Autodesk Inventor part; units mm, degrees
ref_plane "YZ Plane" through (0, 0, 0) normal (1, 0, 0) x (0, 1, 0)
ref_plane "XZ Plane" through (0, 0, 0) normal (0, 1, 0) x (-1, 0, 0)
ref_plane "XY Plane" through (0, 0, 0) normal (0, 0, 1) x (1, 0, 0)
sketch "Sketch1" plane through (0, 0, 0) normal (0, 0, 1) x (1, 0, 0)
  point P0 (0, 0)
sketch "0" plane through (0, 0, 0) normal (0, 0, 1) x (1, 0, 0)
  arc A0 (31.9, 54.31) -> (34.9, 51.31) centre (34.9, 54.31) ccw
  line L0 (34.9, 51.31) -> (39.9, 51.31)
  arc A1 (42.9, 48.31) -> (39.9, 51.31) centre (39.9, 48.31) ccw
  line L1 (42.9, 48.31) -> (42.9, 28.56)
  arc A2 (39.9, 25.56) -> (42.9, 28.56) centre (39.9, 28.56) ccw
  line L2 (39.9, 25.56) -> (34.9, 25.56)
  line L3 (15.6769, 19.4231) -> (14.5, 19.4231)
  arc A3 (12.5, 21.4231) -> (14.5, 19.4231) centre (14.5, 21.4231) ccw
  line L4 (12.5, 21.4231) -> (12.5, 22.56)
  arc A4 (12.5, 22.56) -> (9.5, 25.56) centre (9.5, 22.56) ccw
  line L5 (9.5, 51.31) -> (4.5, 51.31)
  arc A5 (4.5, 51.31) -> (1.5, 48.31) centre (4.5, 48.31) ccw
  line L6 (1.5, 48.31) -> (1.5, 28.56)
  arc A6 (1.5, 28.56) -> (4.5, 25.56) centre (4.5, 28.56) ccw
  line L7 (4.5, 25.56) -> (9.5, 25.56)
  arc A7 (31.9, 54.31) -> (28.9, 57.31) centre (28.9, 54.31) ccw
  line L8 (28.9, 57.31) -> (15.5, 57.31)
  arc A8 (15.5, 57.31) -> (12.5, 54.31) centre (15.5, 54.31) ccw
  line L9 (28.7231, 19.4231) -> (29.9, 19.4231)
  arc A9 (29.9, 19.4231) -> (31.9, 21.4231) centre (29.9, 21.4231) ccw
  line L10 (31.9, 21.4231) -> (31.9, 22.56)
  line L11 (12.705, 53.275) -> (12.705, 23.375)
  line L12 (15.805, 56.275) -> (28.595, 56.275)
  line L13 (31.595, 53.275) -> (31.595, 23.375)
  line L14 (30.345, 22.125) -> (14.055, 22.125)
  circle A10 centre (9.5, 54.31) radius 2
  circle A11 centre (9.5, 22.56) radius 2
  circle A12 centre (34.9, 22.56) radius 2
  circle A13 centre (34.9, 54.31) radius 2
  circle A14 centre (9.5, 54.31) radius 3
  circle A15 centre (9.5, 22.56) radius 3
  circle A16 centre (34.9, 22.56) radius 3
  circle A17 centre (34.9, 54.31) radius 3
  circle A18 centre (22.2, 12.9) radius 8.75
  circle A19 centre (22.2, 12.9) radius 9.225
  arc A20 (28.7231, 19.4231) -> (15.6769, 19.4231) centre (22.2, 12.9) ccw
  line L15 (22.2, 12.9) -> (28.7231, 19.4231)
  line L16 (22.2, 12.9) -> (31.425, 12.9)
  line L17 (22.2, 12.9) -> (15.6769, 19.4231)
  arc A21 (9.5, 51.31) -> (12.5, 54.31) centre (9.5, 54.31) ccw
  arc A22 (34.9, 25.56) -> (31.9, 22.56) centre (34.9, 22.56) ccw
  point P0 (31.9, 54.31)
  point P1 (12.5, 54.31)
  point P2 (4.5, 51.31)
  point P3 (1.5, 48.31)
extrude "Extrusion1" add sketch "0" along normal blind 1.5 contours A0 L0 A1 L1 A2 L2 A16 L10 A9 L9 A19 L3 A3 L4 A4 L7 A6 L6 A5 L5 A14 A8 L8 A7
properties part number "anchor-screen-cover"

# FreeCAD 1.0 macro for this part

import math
import FreeCAD as App
import Part
import Sketcher
Q = App.Units.Quantity

doc = App.newDocument("Part")
body = doc.addObject("PartDesign::Body", "Body")

# Sketch on XY plane
sketch1 = body.newObject("Sketcher::SketchObject", "Sketch")
sketch1.AttachmentSupport = (doc.getObject("XY_Plane"), [""])
sketch1.MapMode = "FlatFace"
sketch1.addGeometry([
    Part.ArcOfCircle(Part.Circle(App.Vector(34.9, 54.31, 0), App.Vector(0, 0, 1), 3), math.radians(180), math.radians(270)),  # 0
    Part.ArcOfCircle(Part.Circle(App.Vector(28.9, 54.31, 0), App.Vector(0, 0, 1), 3), math.radians(0), math.radians(90)),  # 1
    Part.LineSegment(App.Vector(28.9, 57.31, 0), App.Vector(15.5, 57.31, 0)),  # 2
    Part.ArcOfCircle(Part.Circle(App.Vector(15.5, 54.31, 0), App.Vector(0, 0, 1), 3), math.radians(90), math.radians(180)),  # 3
    Part.ArcOfCircle(Part.Circle(App.Vector(9.5, 54.31, 0), App.Vector(0, 0, 1), 3), math.radians(-90), math.radians(0)),  # 4
    Part.LineSegment(App.Vector(9.5, 51.31, 0), App.Vector(4.5, 51.31, 0)),  # 5
    Part.ArcOfCircle(Part.Circle(App.Vector(4.5, 48.31, 0), App.Vector(0, 0, 1), 3), math.radians(90), math.radians(180)),  # 6
    Part.LineSegment(App.Vector(1.5, 48.31, 0), App.Vector(1.5, 28.56, 0)),  # 7
    Part.ArcOfCircle(Part.Circle(App.Vector(4.5, 28.56, 0), App.Vector(0, 0, 1), 3), math.radians(180), math.radians(270)),  # 8
    Part.LineSegment(App.Vector(4.5, 25.56, 0), App.Vector(9.5, 25.56, 0)),  # 9
    Part.ArcOfCircle(Part.Circle(App.Vector(9.5, 22.56, 0), App.Vector(0, 0, 1), 3), math.radians(0), math.radians(90)),  # 10
    Part.LineSegment(App.Vector(12.5, 22.56, 0), App.Vector(12.5, 21.4231, 0)),  # 11
    Part.ArcOfCircle(Part.Circle(App.Vector(14.5, 21.4231, 0), App.Vector(0, 0, 1), 2), math.radians(180), math.radians(270)),  # 12
    Part.LineSegment(App.Vector(14.5, 19.4231, 0), App.Vector(15.6769, 19.4231, 0)),  # 13
    Part.ArcOfCircle(Part.Circle(App.Vector(22.2, 12.9, 0), App.Vector(0, 0, 1), 9.225), math.radians(45), math.radians(135)),  # 14
    Part.LineSegment(App.Vector(28.7231, 19.4231, 0), App.Vector(29.9, 19.4231, 0)),  # 15
    Part.ArcOfCircle(Part.Circle(App.Vector(29.9, 21.4231, 0), App.Vector(0, 0, 1), 2), math.radians(-90), math.radians(0)),  # 16
    Part.LineSegment(App.Vector(31.9, 21.4231, 0), App.Vector(31.9, 22.56, 0)),  # 17
    Part.ArcOfCircle(Part.Circle(App.Vector(34.9, 22.56, 0), App.Vector(0, 0, 1), 3), math.radians(90), math.radians(180)),  # 18
    Part.LineSegment(App.Vector(34.9, 25.56, 0), App.Vector(39.9, 25.56, 0)),  # 19
    Part.ArcOfCircle(Part.Circle(App.Vector(39.9, 28.56, 0), App.Vector(0, 0, 1), 3), math.radians(-90), math.radians(0)),  # 20
    Part.LineSegment(App.Vector(42.9, 28.56, 0), App.Vector(42.9, 48.31, 0)),  # 21
    Part.ArcOfCircle(Part.Circle(App.Vector(39.9, 48.31, 0), App.Vector(0, 0, 1), 3), math.radians(0), math.radians(90)),  # 22
    Part.LineSegment(App.Vector(39.9, 51.31, 0), App.Vector(34.9, 51.31, 0)),  # 23
], False)
sketch1.addConstraint([
    Sketcher.Constraint("Tangent", 0, 1, 1, 1),
    Sketcher.Constraint("Tangent", 1, 2, 2, 1),
    Sketcher.Constraint("Tangent", 2, 2, 3, 1),
    Sketcher.Constraint("Tangent", 3, 2, 4, 2),
    Sketcher.Constraint("Tangent", 4, 1, 5, 1),
    Sketcher.Constraint("Tangent", 5, 2, 6, 1),
    Sketcher.Constraint("Tangent", 6, 2, 7, 1),
    Sketcher.Constraint("Tangent", 7, 2, 8, 1),
    Sketcher.Constraint("Tangent", 8, 2, 9, 1),
    Sketcher.Constraint("Tangent", 9, 2, 10, 2),
    Sketcher.Constraint("Tangent", 10, 1, 11, 1),
    Sketcher.Constraint("Tangent", 11, 2, 12, 1),
    Sketcher.Constraint("Tangent", 12, 2, 13, 1),
    Sketcher.Constraint("Coincident", 13, 2, 14, 2),
    Sketcher.Constraint("Coincident", 14, 1, 15, 1),
    Sketcher.Constraint("Tangent", 15, 2, 16, 1),
    Sketcher.Constraint("Tangent", 16, 2, 17, 1),
    Sketcher.Constraint("Tangent", 17, 2, 18, 2),
    Sketcher.Constraint("Tangent", 18, 1, 19, 1),
    Sketcher.Constraint("Tangent", 19, 2, 20, 1),
    Sketcher.Constraint("Tangent", 20, 2, 21, 1),
    Sketcher.Constraint("Tangent", 21, 2, 22, 1),
    Sketcher.Constraint("Tangent", 22, 2, 23, 1),
    Sketcher.Constraint("Tangent", 23, 2, 0, 2),
    Sketcher.Constraint("Horizontal", 2),
    Sketcher.Constraint("Horizontal", 5),
    Sketcher.Constraint("Vertical", 7),
    Sketcher.Constraint("Horizontal", 9),
    Sketcher.Constraint("Vertical", 11),
    Sketcher.Constraint("Horizontal", 13),
    Sketcher.Constraint("Horizontal", 15),
    Sketcher.Constraint("Vertical", 17),
    Sketcher.Constraint("Horizontal", 19),
    Sketcher.Constraint("Vertical", 21),
    Sketcher.Constraint("Horizontal", 23),
    Sketcher.Constraint("Equal", 0, 1),
    Sketcher.Constraint("Equal", 1, 3),
    Sketcher.Constraint("Equal", 3, 4),
    Sketcher.Constraint("Equal", 4, 6),
    Sketcher.Constraint("Equal", 6, 8),
    Sketcher.Constraint("Equal", 8, 10),
    Sketcher.Constraint("Equal", 12, 16),
    Sketcher.Constraint("Equal", 10, 18),
    Sketcher.Constraint("Equal", 18, 20),
    Sketcher.Constraint("Equal", 20, 22),
    Sketcher.Constraint("Horizontal", 0, 3, 1, 3),
    Sketcher.Constraint("Horizontal", 3, 3, 4, 3),
    Sketcher.Constraint("Horizontal", 12, 3, 16, 3),
    Sketcher.Constraint("Horizontal", 10, 3, 18, 3),
    Sketcher.Constraint("Vertical", 4, 3, 10, 3),
    Sketcher.Constraint("Vertical", 0, 3, 18, 3),
    Sketcher.Constraint("Equal", 13, 15),
    Sketcher.Constraint("Equal", 9, 19),
    Sketcher.Constraint("Radius", 0, Q("3 mm")),
    Sketcher.Constraint("Radius", 12, Q("2 mm")),
    Sketcher.Constraint("DistanceX", 5, 2, 5, 1, Q("5 mm")),
    Sketcher.Constraint("DistanceX", 2, 2, 2, 1, Q("13.4 mm")),
    Sketcher.Constraint("Radius", 14, Q("9.225 mm")),
    Sketcher.Constraint("DistanceY", 7, 2, 7, 1, Q("19.75 mm")),
    Sketcher.Constraint("DistanceX", -1, 1, 0, 3, Q("34.9 mm")),
    Sketcher.Constraint("DistanceY", -1, 1, 14, 3, Q("12.9 mm")),
    Sketcher.Constraint("DistanceX", 13, 1, 13, 2, Q("1.177 mm")),
    Sketcher.Constraint("DistanceY", 11, 2, 11, 1, Q("1.137 mm")),
])
pad1 = body.newObject("PartDesign::Pad", "Pad")
pad1.Profile = sketch1
pad1.Length = 1.5

doc.recompute()
